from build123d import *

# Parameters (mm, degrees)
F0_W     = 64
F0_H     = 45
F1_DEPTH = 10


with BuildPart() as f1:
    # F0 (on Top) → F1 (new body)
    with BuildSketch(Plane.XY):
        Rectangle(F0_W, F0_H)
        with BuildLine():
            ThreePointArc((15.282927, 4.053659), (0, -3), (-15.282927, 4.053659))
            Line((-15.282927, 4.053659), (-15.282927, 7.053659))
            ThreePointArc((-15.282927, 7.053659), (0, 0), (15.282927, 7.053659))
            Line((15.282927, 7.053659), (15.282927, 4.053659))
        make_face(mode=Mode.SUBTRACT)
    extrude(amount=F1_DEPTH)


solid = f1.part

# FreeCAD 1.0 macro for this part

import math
import FreeCAD as App
import Part
import Sketcher

V = App.Vector
Q = App.Units.Quantity


def add_polygon(sketch, points):
    """Adds a closed chain of lines whose ends are joined by coincident constraints."""
    first, n = sketch.GeometryCount, len(points)
    for a, b in zip(points, points[1:] + points[:1]):
        sketch.addGeometry(Part.LineSegment(App.Vector(*a, 0), App.Vector(*b, 0)), False)
    for i in range(n):
        sketch.addConstraint(Sketcher.Constraint("Coincident", first + i, 2, first + (i + 1) % n, 1))

doc = App.newDocument("Part")
body = doc.addObject("PartDesign::Body", "Body")

sketch1 = doc.addObject("Sketcher::SketchObject", "Sketch")
body.addObject(sketch1)
sketch1.AttachmentSupport = (doc.XY_Plane, [""])
sketch1.MapMode = "FlatFace"
add_polygon(sketch1, [(-32, 22.5), (-32, -22.5), (32, -22.5), (32, 22.5)])
sketch1.addGeometry(Part.LineSegment(V(15.3, 7.1, 0), V(15.3, 4.1, 0)), False)
sketch1.addGeometry(Part.ArcOfCircle(Part.Circle(V(0, 17.1, 0), V(0, 0, 1), 20.1), math.radians(-140), math.radians(-40)), False)
sketch1.addGeometry(Part.LineSegment(V(-15.3, 4.1, 0), V(-15.3, 7.1, 0)), False)
sketch1.addGeometry(Part.ArcOfCircle(Part.Circle(V(0, 20.1, 0), V(0, 0, 1), 20.1), math.radians(-140), math.radians(-40)), False)
sketch1.addConstraint(Sketcher.Constraint("Coincident", 4, 2, 5, 2))
sketch1.addConstraint(Sketcher.Constraint("Coincident", 5, 1, 6, 1))
sketch1.addConstraint(Sketcher.Constraint("Coincident", 6, 2, 7, 1))
sketch1.addConstraint(Sketcher.Constraint("Coincident", 7, 2, 4, 1))
sketch1.addConstraint(Sketcher.Constraint("Vertical", 0))
sketch1.addConstraint(Sketcher.Constraint("Horizontal", 1))
sketch1.addConstraint(Sketcher.Constraint("Vertical", 2))
sketch1.addConstraint(Sketcher.Constraint("Horizontal", 3))
sketch1.addConstraint(Sketcher.Constraint("Vertical", 4))
sketch1.addConstraint(Sketcher.Constraint("Vertical", 6))
sketch1.addConstraint(Sketcher.Constraint("Equal", 5, 7))
sketch1.addConstraint(Sketcher.Constraint("Symmetric", 0, 2, 2, 2, -1, 1))
sketch1.addConstraint(Sketcher.Constraint("Symmetric", 4, 2, 5, 1, -2))
sketch1.addConstraint(Sketcher.Constraint("PointOnObject", 7, 3, -2))
sketch1.addConstraint(Sketcher.Constraint("DistanceX", 1, 1, 1, 2, Q("64 mm")))
sketch1.addConstraint(Sketcher.Constraint("DistanceY", 0, 2, 0, 1, Q("45 mm")))
sketch1.addConstraint(Sketcher.Constraint("DistanceY", 4, 2, 4, 1, Q("3 mm")))
sketch1.addConstraint(Sketcher.Constraint("Radius", 5, Q("20.083333 mm")))
sketch1.addConstraint(Sketcher.Constraint("DistanceY", -1, 1, 4, 2, Q("4.053659 mm")))
sketch1.addConstraint(Sketcher.Constraint("DistanceY", -1, 1, 5, 3, Q("17.083333 mm")))
pad1 = doc.addObject("PartDesign::Pad", "Pad")
body.addObject(pad1)
pad1.Profile = sketch1
pad1.Length = 10

doc.recompute()
